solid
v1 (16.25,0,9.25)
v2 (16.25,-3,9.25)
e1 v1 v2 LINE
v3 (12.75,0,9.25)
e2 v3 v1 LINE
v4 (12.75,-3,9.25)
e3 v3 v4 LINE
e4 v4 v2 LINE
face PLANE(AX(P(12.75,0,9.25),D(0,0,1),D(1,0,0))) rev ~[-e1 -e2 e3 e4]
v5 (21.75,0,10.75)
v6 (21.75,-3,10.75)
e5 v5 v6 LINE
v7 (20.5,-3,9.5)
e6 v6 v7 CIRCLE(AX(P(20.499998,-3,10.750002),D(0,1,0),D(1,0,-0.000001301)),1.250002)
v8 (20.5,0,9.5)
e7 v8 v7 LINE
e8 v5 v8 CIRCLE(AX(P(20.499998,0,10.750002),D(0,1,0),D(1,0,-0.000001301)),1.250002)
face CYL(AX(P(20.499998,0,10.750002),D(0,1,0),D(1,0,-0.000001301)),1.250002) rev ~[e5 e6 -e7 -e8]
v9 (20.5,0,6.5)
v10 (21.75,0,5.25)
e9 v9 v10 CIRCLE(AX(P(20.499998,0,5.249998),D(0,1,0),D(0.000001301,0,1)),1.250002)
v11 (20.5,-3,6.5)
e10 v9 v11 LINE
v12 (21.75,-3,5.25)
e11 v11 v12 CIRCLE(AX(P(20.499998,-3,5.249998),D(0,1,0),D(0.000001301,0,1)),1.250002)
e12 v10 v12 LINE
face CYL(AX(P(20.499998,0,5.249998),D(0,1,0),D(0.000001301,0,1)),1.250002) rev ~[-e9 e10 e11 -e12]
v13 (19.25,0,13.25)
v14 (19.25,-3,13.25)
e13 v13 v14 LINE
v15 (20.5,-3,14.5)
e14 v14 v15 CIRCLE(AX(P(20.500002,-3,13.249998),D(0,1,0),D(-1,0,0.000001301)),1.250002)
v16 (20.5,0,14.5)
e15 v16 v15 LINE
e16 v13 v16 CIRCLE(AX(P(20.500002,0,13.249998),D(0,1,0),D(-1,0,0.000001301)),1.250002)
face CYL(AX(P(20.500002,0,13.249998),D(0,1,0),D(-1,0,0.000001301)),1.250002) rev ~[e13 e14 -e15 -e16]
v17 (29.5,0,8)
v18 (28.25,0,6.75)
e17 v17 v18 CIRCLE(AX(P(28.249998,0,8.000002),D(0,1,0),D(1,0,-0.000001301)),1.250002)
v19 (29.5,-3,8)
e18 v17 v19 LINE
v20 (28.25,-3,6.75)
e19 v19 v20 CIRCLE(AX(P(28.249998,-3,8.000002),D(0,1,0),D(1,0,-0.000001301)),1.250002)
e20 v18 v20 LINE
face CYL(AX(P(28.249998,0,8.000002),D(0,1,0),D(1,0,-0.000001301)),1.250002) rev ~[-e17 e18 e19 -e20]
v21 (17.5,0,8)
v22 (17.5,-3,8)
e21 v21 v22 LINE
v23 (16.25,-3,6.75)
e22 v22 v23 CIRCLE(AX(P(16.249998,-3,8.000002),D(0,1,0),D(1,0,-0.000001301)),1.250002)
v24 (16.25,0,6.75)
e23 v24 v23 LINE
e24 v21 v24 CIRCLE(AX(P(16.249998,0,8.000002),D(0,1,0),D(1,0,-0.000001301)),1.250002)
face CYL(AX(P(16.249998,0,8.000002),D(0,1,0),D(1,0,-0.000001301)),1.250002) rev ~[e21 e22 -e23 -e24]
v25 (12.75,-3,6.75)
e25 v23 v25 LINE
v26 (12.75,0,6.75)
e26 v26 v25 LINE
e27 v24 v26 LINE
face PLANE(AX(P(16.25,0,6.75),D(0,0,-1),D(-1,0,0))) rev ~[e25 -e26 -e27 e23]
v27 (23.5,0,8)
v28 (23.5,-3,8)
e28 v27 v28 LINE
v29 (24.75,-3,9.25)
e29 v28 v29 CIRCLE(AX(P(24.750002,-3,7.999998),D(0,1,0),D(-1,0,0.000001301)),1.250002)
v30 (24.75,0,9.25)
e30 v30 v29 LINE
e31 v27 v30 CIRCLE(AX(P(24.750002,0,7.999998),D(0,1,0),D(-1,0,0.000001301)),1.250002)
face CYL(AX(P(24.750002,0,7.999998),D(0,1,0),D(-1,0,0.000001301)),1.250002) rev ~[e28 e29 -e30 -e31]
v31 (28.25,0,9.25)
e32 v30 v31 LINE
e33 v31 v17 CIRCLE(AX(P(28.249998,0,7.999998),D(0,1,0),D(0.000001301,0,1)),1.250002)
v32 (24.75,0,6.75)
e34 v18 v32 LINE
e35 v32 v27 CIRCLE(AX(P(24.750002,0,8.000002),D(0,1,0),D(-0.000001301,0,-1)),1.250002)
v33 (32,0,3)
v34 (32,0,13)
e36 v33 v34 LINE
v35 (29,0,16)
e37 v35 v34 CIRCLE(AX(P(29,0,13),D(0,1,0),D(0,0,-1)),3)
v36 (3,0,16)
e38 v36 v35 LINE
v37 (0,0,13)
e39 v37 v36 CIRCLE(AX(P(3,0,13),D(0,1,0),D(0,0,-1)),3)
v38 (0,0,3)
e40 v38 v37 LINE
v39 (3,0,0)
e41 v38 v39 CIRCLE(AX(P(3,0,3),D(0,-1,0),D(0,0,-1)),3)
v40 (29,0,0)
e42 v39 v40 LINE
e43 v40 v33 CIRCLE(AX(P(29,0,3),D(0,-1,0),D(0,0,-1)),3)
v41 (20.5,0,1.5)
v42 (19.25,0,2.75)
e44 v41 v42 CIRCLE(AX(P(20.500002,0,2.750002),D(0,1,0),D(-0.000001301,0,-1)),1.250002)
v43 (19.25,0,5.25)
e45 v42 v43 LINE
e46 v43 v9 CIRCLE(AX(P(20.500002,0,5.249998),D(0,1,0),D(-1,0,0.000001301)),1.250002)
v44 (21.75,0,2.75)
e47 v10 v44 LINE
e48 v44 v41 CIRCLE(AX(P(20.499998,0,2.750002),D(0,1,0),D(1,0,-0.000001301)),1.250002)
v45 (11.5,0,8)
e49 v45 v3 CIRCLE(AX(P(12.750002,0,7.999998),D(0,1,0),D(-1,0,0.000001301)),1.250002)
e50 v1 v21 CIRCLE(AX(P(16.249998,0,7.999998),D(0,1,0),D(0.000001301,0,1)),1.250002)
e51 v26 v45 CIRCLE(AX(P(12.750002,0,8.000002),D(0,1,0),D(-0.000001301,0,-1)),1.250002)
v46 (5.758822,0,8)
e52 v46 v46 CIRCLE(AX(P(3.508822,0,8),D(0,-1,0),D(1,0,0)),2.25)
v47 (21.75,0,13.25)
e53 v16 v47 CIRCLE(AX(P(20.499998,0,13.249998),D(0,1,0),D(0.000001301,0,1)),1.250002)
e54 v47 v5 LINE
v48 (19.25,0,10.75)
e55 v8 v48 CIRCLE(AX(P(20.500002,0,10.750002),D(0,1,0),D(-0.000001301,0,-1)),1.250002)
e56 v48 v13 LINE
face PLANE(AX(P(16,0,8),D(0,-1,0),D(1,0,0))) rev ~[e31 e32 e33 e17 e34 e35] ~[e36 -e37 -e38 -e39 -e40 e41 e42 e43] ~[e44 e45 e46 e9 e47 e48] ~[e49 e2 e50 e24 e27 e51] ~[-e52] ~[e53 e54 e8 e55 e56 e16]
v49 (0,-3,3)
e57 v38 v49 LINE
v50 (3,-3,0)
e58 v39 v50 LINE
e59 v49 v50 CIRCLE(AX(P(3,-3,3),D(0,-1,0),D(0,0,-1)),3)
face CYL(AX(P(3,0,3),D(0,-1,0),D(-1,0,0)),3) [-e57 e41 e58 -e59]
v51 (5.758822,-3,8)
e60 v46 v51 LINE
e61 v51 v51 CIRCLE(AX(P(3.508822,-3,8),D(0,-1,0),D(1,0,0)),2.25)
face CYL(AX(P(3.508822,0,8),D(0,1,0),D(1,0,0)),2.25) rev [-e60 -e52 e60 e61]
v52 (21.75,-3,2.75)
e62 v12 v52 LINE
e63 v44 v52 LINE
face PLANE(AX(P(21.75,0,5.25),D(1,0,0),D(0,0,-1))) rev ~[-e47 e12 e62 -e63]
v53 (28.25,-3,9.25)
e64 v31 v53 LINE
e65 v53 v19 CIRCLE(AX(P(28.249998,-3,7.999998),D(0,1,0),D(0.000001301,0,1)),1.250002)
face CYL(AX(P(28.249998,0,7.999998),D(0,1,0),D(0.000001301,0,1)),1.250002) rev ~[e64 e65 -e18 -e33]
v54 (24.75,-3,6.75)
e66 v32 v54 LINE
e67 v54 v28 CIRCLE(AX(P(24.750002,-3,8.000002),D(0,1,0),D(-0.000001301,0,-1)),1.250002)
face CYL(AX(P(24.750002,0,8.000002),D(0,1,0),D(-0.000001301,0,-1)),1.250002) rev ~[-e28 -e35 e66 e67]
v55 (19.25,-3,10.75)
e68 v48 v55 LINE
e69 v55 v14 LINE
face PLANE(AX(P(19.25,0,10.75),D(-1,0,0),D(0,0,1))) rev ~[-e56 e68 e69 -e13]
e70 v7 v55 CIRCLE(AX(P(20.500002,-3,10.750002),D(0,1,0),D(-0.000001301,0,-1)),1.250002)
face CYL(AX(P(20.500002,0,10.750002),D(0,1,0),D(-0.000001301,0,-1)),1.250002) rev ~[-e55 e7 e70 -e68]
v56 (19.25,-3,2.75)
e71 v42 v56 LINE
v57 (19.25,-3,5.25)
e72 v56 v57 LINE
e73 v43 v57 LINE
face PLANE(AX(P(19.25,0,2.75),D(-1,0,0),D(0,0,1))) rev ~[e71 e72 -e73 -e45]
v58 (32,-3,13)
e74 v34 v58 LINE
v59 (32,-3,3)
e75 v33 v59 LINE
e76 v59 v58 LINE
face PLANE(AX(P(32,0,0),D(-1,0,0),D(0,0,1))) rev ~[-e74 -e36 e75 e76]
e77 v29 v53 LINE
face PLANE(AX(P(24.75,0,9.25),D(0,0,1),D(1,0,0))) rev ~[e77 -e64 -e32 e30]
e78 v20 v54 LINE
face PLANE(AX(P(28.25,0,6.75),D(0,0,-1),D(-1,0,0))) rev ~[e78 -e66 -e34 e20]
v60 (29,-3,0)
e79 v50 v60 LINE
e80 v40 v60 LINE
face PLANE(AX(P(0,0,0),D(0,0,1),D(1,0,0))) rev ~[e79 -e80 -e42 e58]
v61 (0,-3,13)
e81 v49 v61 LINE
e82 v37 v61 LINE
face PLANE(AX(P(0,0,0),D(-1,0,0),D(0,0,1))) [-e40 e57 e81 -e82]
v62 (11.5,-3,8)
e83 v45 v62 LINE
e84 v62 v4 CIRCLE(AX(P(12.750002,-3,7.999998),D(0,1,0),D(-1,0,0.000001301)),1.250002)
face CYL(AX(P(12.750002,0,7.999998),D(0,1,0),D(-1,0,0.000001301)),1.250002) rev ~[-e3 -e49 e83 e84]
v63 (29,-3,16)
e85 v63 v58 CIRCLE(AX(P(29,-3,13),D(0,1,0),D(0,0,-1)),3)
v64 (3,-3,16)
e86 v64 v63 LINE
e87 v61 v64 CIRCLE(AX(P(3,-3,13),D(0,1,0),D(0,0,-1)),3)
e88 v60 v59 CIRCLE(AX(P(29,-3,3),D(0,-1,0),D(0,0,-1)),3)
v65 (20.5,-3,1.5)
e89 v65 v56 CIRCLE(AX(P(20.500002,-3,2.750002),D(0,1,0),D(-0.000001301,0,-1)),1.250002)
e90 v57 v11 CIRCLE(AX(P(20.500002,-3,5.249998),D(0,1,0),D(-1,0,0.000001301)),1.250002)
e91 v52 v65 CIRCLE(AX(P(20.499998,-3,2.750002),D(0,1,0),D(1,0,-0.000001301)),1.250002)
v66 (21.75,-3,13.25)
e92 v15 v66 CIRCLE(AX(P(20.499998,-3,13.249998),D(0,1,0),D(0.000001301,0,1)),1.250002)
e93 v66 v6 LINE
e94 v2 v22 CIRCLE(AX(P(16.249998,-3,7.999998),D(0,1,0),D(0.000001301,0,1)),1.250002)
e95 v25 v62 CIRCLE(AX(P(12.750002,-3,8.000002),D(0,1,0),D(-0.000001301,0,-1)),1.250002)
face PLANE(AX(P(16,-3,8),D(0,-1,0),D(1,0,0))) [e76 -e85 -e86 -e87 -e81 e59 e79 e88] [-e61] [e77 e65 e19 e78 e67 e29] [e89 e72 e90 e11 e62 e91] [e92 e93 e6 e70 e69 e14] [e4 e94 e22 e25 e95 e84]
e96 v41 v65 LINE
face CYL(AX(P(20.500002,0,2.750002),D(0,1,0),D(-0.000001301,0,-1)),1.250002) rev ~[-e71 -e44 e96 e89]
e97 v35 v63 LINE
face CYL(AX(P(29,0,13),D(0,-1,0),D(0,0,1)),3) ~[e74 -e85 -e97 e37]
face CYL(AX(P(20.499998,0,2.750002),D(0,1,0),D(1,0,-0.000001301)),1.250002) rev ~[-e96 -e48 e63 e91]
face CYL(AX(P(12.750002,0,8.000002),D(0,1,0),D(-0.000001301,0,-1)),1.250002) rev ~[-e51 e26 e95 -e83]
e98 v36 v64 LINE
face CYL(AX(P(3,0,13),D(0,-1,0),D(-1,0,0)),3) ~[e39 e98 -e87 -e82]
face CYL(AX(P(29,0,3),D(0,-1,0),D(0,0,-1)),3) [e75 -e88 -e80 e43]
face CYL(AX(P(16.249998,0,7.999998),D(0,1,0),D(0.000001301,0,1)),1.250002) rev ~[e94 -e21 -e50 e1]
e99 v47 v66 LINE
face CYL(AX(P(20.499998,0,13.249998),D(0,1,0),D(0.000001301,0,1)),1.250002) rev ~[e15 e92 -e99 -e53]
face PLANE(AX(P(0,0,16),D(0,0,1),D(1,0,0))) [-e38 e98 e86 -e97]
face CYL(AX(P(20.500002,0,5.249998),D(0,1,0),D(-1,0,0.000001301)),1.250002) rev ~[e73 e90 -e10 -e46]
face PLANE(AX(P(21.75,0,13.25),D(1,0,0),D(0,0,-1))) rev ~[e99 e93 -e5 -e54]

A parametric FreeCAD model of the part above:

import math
import FreeCAD as App
import Part
import Sketcher

V = App.Vector
Q = App.Units.Quantity


def edges_at(feature, points):
    """Names of the edges that pass closest to the given points."""
    edges = feature.Shape.Edges
    near = lambda p: min(range(len(edges)), key=lambda i: edges[i].distToShape(Part.Vertex(*p))[0])
    return sorted({f"Edge{near(p) + 1}" for p in points})

doc = App.newDocument("Part")
params = doc.addObject("Spreadsheet::Sheet", "Params")
for row, (alias, value) in enumerate([
    ("sketch1_diameter", "4.5 mm"),
    ("sketch1_width", "32 mm"),
    ("sketch1_height", "16 mm"),
    ("sketch1_radius", "1.250002 mm"),
    ("sketch1_width2", "3.5 mm"),
    ("pad1_length", "3 mm"),
    ("fillet_radius", "3 mm"),
], start=1):
    params.set(f"A{row}", alias)
    params.set(f"B{row}", "=" + value)
    params.setAlias(f"B{row}", alias)

body = doc.addObject("PartDesign::Body", "Body")

sketch1 = body.newObject("Sketcher::SketchObject", "Sketch")
sketch1.AttachmentSupport = (doc.getObject("XZ_Plane"), [""])
sketch1.MapMode = "FlatFace"
sketch1.addGeometry([
    Part.LineSegment(V(0, 16, 0), V(0, 0, 0)),
    Part.LineSegment(V(0, 0, 0), V(32, 0, 0)),
    Part.LineSegment(V(32, 0, 0), V(32, 16, 0)),
    Part.LineSegment(V(32, 16, 0), V(0, 16, 0)),
    Part.ArcOfCircle(Part.Circle(V(20.5, 2.8, 0), V(0, 0, 1), 1.3), math.radians(-180), math.radians(-90)),
    Part.LineSegment(V(19.2, 2.8, 0), V(19.2, 5.2, 0)),
    Part.ArcOfCircle(Part.Circle(V(20.5, 5.2, 0), V(0, 0, 1), 1.3), math.radians(90), math.radians(180)),
    Part.ArcOfCircle(Part.Circle(V(20.5, 5.2, 0), V(0, 0, 1), 1.3), math.radians(0), math.radians(90)),
    Part.LineSegment(V(21.8, 5.2, 0), V(21.8, 2.8, 0)),
    Part.ArcOfCircle(Part.Circle(V(20.5, 2.8, 0), V(0, 0, 1), 1.3), math.radians(-90), math.radians(0)),
    Part.Circle(V(3.5, 8, 0), V(0, 0, 1), 2.2),
    Part.ArcOfCircle(Part.Circle(V(12.8, 8, 0), V(0, 0, 1), 1.3), math.radians(-180), math.radians(-90)),
    Part.ArcOfCircle(Part.Circle(V(12.8, 8, 0), V(0, 0, 1), 1.3), math.radians(90), math.radians(180)),
    Part.LineSegment(V(12.8, 9.2, 0), V(16.2, 9.2, 0)),
    Part.ArcOfCircle(Part.Circle(V(16.2, 8, 0), V(0, 0, 1), 1.3), math.radians(0), math.radians(90)),
    Part.ArcOfCircle(Part.Circle(V(16.2, 8, 0), V(0, 0, 1), 1.3), math.radians(-90), math.radians(0)),
    Part.LineSegment(V(16.2, 6.8, 0), V(12.8, 6.8, 0)),
    Part.ArcOfCircle(Part.Circle(V(24.8, 8, 0), V(0, 0, 1), 1.3), math.radians(-180), math.radians(-90)),
    Part.ArcOfCircle(Part.Circle(V(24.8, 8, 0), V(0, 0, 1), 1.3), math.radians(90), math.radians(180)),
    Part.LineSegment(V(24.8, 9.2, 0), V(28.2, 9.2, 0)),
    Part.ArcOfCircle(Part.Circle(V(28.2, 8, 0), V(0, 0, 1), 1.3), math.radians(0), math.radians(90)),
    Part.ArcOfCircle(Part.Circle(V(28.2, 8, 0), V(0, 0, 1), 1.3), math.radians(-90), math.radians(0)),
    Part.LineSegment(V(28.2, 6.8, 0), V(24.8, 6.8, 0)),
    Part.ArcOfCircle(Part.Circle(V(20.5, 10.8, 0), V(0, 0, 1), 1.3), math.radians(-180), math.radians(-90)),
    Part.LineSegment(V(19.2, 10.8, 0), V(19.2, 13.2, 0)),
    Part.ArcOfCircle(Part.Circle(V(20.5, 13.2, 0), V(0, 0, 1), 1.3), math.radians(90), math.radians(180)),
    Part.ArcOfCircle(Part.Circle(V(20.5, 13.2, 0), V(0, 0, 1), 1.3), math.radians(0), math.radians(90)),
    Part.LineSegment(V(21.8, 13.2, 0), V(21.8, 10.8, 0)),
    Part.ArcOfCircle(Part.Circle(V(20.5, 10.8, 0), V(0, 0, 1), 1.3), math.radians(-90), math.radians(0)),
], False)
sketch1.addConstraint([
    Sketcher.Constraint("Coincident", 0, 2, 1, 1),
    Sketcher.Constraint("Coincident", 1, 2, 2, 1),
    Sketcher.Constraint("Coincident", 2, 2, 3, 1),
    Sketcher.Constraint("Coincident", 3, 2, 0, 1),
    Sketcher.Constraint("Tangent", 4, 1, 5, 1),
    Sketcher.Constraint("Tangent", 5, 2, 6, 2),
    Sketcher.Constraint("Coincident", 6, 1, 7, 2),
    Sketcher.Constraint("Tangent", 7, 1, 8, 1),
    Sketcher.Constraint("Tangent", 8, 2, 9, 2),
    Sketcher.Constraint("Coincident", 9, 1, 4, 2),
    Sketcher.Constraint("Coincident", 11, 1, 12, 2),
    Sketcher.Constraint("Tangent", 12, 1, 13, 1),
    Sketcher.Constraint("Tangent", 13, 2, 14, 2),
    Sketcher.Constraint("Coincident", 14, 1, 15, 2),
    Sketcher.Constraint("Tangent", 15, 1, 16, 1),
    Sketcher.Constraint("Tangent", 16, 2, 11, 2),
    Sketcher.Constraint("Coincident", 17, 1, 18, 2),
    Sketcher.Constraint("Tangent", 18, 1, 19, 1),
    Sketcher.Constraint("Tangent", 19, 2, 20, 2),
    Sketcher.Constraint("Coincident", 20, 1, 21, 2),
    Sketcher.Constraint("Tangent", 21, 1, 22, 1),
    Sketcher.Constraint("Tangent", 22, 2, 17, 2),
    Sketcher.Constraint("Tangent", 23, 1, 24, 1),
    Sketcher.Constraint("Tangent", 24, 2, 25, 2),
    Sketcher.Constraint("Coincident", 25, 1, 26, 2),
    Sketcher.Constraint("Tangent", 26, 1, 27, 1),
    Sketcher.Constraint("Tangent", 27, 2, 28, 2),
    Sketcher.Constraint("Coincident", 28, 1, 23, 2),
    Sketcher.Constraint("Vertical", 0),
    Sketcher.Constraint("Horizontal", 1),
    Sketcher.Constraint("Vertical", 2),
    Sketcher.Constraint("Horizontal", 3),
    Sketcher.Constraint("Vertical", 5),
    Sketcher.Constraint("Vertical", 8),
    Sketcher.Constraint("Horizontal", 13),
    Sketcher.Constraint("Horizontal", 16),
    Sketcher.Constraint("Horizontal", 19),
    Sketcher.Constraint("Horizontal", 22),
    Sketcher.Constraint("Vertical", 24),
    Sketcher.Constraint("Vertical", 27),
    Sketcher.Constraint("Coincident", 0, 2, -1, 1),
    Sketcher.Constraint("Coincident", 7, 3, 6, 3),
    Sketcher.Constraint("Coincident", 9, 3, 4, 3),
    Sketcher.Constraint("Coincident", 12, 3, 11, 3),
    Sketcher.Constraint("Coincident", 15, 3, 14, 3),
    Sketcher.Constraint("Coincident", 18, 3, 17, 3),
    Sketcher.Constraint("Coincident", 21, 3, 20, 3),
    Sketcher.Constraint("Coincident", 26, 3, 25, 3),
    Sketcher.Constraint("Coincident", 28, 3, 23, 3),
    Sketcher.Constraint("Equal", 9, 11),
    Sketcher.Constraint("Equal", 15, 17),
    Sketcher.Constraint("Equal", 21, 23),
    Sketcher.Constraint("Horizontal", 10, 3, 11, 3),
    Sketcher.Constraint("Horizontal", 15, 3, 17, 3),
    Sketcher.Constraint("Horizontal", 21, 3, 11, 1),
    Sketcher.Constraint("Horizontal", 11, 1, 14, 1),
    Sketcher.Constraint("Horizontal", 14, 1, 17, 1),
    Sketcher.Constraint("Horizontal", 17, 1, 20, 1),
    Sketcher.Constraint("Vertical", 6, 3, 23, 3),
    Sketcher.Constraint("Vertical", 28, 3, 6, 1),
    Sketcher.Constraint("Vertical", 6, 1, 9, 1),
    Sketcher.Constraint("Vertical", 9, 1, 25, 1),
    Sketcher.Constraint("Vertical", 25, 1, 28, 1),
    Sketcher.Constraint("Equal", 16, 19),
    Sketcher.Constraint("Equal", 8, 24),
    Sketcher.Constraint("Diameter", 10, Q("4.5 mm")),
    Sketcher.Constraint("DistanceX", 1, 1, 1, 2, Q("32 mm")),
    Sketcher.Constraint("DistanceY", 0, 2, 0, 1, Q("16 mm")),
    Sketcher.Constraint("Radius", 4, Q("1.250002 mm")),
    Sketcher.Constraint("DistanceX", 13, 1, 13, 2, Q("3.5 mm")),
    Sketcher.Constraint("DistanceY", 5, 1, 5, 2, Q("2.5 mm")),
    Sketcher.Constraint("DistanceY", -1, 1, 10, 3, Q("8 mm")),
    Sketcher.Constraint("DistanceX", 14, 3, 4, 1, Q("3.000002 mm")),
    Sketcher.Constraint("DistanceX", 6, 1, 17, 1, Q("3 mm")),
    Sketcher.Constraint("DistanceY", 6, 1, 28, 1, Q("3 mm")),
    Sketcher.Constraint("DistanceX", -1, 1, 4, 3, Q("20.500002 mm")),
    Sketcher.Constraint("DistanceY", -1, 1, 6, 1, Q("6.5 mm")),
    Sketcher.Constraint("DistanceX", -1, 1, 10, 3, Q("3.508822 mm")),
])
sketch1.setExpression("Constraints[65]", "Params.sketch1_diameter")
sketch1.setExpression("Constraints[66]", "Params.sketch1_width")
sketch1.setExpression("Constraints[67]", "Params.sketch1_height")
sketch1.setExpression("Constraints[68]", "Params.sketch1_radius")
sketch1.setExpression("Constraints[69]", "Params.sketch1_width2")
pad1 = body.newObject("PartDesign::Pad", "Pad")
pad1.Profile = sketch1
pad1.setExpression("Length", "Params.pad1_length")
doc.recompute()

fillet = body.newObject("PartDesign::Fillet", "Fillet")
fillet.Base = (pad1, edges_at(pad1, [
    (32, -1.5, 0),
    (32, -1.5, 16),
    (0, -1.5, 0),
    (0, -1.5, 16),
]))
fillet.setExpression("Radius", "Params.fillet_radius")

doc.recompute()
